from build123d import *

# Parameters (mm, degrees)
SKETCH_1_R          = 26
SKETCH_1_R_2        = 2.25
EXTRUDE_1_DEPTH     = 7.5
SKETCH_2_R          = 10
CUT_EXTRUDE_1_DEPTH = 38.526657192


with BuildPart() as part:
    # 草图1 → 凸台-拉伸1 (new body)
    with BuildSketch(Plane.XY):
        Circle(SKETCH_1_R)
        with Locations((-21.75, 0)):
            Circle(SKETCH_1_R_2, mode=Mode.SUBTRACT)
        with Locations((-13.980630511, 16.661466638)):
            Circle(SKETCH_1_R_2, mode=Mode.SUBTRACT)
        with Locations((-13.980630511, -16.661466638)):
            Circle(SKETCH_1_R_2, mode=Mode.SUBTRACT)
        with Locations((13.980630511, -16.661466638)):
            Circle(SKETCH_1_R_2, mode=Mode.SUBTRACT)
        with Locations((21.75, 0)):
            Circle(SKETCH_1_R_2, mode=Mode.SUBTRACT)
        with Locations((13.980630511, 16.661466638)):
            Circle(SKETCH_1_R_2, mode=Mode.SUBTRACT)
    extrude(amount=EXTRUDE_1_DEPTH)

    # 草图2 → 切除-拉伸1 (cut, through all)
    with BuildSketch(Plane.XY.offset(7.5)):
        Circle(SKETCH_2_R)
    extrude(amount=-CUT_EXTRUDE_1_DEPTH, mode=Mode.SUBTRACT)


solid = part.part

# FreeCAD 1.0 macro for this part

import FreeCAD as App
import Part
import Sketcher
Q = App.Units.Quantity

doc = App.newDocument("Part")
body = doc.addObject("PartDesign::Body", "Body")

sketch1 = doc.addObject("Sketcher::SketchObject", "Sketch")
body.addObject(sketch1)
sketch1.AttachmentSupport = (doc.XY_Plane, [""])
sketch1.MapMode = "FlatFace"
sketch1.addGeometry([
    Part.Circle(App.Vector(0, 0, 0), App.Vector(0, 0, 1), 26),
    Part.Circle(App.Vector(-14, -16.7, 0), App.Vector(0, 0, 1), 2.2),
    Part.Circle(App.Vector(14, -16.7, 0), App.Vector(0, 0, 1), 2.2),
    Part.Circle(App.Vector(-21.8, 0, 0), App.Vector(0, 0, 1), 2.2),
    Part.Circle(App.Vector(-14, 16.7, 0), App.Vector(0, 0, 1), 2.2),
    Part.Circle(App.Vector(21.8, 0, 0), App.Vector(0, 0, 1), 2.2),
    Part.Circle(App.Vector(14, 16.7, 0), App.Vector(0, 0, 1), 2.2),
], False)
sketch1.addConstraint([
    Sketcher.Constraint("Coincident", 0, 3, -1, 1),
    Sketcher.Constraint("Equal", 1, 2),
    Sketcher.Constraint("Equal", 2, 3),
    Sketcher.Constraint("Equal", 3, 4),
    Sketcher.Constraint("Equal", 4, 5),
    Sketcher.Constraint("Equal", 5, 6),
    Sketcher.Constraint("Symmetric", 2, 3, 4, 3, -1, 1),
    Sketcher.Constraint("Symmetric", 3, 3, 5, 3, -1, 1),
    Sketcher.Constraint("Symmetric", 1, 3, 6, 3, -1, 1),
    Sketcher.Constraint("Symmetric", 1, 3, 2, 3, -2),
    Sketcher.Constraint("PointOnObject", 3, 3, -1),
    Sketcher.Constraint("Diameter", 0, Q("52 mm")),
    Sketcher.Constraint("Diameter", 1, Q("4.5 mm")),
    Sketcher.Constraint("DistanceX", 3, 3, 5, 3, Q("43.5 mm")),
    Sketcher.Constraint("DistanceX", 1, 3, -1, 1, Q("13.980631 mm")),
    Sketcher.Constraint("DistanceY", 1, 3, -1, 1, Q("16.661467 mm")),
])
pad1 = doc.addObject("PartDesign::Pad", "Pad")
body.addObject(pad1)
pad1.Profile = sketch1
pad1.Length = 7.5

sketch2 = doc.addObject("Sketcher::SketchObject", "Sketch001")
body.addObject(sketch2)
sketch2.AttachmentSupport = (doc.XY_Plane, [""])
sketch2.MapMode = "FlatFace"
sketch2.AttachmentOffset = App.Placement(App.Vector(0, 0, 7.5), App.Rotation())
sketch2.addGeometry(Part.Circle(App.Vector(0, 0, 0), App.Vector(0, 0, 1), 10), False)
sketch2.addConstraint([
    Sketcher.Constraint("Coincident", 0, 3, -1, 1),
    Sketcher.Constraint("Diameter", 0, Q("20 mm")),
])
pocket1 = doc.addObject("PartDesign::Pocket", "Pocket")
body.addObject(pocket1)
pocket1.Profile = sketch2
pocket1.Type = "ThroughAll"

doc.recompute()
